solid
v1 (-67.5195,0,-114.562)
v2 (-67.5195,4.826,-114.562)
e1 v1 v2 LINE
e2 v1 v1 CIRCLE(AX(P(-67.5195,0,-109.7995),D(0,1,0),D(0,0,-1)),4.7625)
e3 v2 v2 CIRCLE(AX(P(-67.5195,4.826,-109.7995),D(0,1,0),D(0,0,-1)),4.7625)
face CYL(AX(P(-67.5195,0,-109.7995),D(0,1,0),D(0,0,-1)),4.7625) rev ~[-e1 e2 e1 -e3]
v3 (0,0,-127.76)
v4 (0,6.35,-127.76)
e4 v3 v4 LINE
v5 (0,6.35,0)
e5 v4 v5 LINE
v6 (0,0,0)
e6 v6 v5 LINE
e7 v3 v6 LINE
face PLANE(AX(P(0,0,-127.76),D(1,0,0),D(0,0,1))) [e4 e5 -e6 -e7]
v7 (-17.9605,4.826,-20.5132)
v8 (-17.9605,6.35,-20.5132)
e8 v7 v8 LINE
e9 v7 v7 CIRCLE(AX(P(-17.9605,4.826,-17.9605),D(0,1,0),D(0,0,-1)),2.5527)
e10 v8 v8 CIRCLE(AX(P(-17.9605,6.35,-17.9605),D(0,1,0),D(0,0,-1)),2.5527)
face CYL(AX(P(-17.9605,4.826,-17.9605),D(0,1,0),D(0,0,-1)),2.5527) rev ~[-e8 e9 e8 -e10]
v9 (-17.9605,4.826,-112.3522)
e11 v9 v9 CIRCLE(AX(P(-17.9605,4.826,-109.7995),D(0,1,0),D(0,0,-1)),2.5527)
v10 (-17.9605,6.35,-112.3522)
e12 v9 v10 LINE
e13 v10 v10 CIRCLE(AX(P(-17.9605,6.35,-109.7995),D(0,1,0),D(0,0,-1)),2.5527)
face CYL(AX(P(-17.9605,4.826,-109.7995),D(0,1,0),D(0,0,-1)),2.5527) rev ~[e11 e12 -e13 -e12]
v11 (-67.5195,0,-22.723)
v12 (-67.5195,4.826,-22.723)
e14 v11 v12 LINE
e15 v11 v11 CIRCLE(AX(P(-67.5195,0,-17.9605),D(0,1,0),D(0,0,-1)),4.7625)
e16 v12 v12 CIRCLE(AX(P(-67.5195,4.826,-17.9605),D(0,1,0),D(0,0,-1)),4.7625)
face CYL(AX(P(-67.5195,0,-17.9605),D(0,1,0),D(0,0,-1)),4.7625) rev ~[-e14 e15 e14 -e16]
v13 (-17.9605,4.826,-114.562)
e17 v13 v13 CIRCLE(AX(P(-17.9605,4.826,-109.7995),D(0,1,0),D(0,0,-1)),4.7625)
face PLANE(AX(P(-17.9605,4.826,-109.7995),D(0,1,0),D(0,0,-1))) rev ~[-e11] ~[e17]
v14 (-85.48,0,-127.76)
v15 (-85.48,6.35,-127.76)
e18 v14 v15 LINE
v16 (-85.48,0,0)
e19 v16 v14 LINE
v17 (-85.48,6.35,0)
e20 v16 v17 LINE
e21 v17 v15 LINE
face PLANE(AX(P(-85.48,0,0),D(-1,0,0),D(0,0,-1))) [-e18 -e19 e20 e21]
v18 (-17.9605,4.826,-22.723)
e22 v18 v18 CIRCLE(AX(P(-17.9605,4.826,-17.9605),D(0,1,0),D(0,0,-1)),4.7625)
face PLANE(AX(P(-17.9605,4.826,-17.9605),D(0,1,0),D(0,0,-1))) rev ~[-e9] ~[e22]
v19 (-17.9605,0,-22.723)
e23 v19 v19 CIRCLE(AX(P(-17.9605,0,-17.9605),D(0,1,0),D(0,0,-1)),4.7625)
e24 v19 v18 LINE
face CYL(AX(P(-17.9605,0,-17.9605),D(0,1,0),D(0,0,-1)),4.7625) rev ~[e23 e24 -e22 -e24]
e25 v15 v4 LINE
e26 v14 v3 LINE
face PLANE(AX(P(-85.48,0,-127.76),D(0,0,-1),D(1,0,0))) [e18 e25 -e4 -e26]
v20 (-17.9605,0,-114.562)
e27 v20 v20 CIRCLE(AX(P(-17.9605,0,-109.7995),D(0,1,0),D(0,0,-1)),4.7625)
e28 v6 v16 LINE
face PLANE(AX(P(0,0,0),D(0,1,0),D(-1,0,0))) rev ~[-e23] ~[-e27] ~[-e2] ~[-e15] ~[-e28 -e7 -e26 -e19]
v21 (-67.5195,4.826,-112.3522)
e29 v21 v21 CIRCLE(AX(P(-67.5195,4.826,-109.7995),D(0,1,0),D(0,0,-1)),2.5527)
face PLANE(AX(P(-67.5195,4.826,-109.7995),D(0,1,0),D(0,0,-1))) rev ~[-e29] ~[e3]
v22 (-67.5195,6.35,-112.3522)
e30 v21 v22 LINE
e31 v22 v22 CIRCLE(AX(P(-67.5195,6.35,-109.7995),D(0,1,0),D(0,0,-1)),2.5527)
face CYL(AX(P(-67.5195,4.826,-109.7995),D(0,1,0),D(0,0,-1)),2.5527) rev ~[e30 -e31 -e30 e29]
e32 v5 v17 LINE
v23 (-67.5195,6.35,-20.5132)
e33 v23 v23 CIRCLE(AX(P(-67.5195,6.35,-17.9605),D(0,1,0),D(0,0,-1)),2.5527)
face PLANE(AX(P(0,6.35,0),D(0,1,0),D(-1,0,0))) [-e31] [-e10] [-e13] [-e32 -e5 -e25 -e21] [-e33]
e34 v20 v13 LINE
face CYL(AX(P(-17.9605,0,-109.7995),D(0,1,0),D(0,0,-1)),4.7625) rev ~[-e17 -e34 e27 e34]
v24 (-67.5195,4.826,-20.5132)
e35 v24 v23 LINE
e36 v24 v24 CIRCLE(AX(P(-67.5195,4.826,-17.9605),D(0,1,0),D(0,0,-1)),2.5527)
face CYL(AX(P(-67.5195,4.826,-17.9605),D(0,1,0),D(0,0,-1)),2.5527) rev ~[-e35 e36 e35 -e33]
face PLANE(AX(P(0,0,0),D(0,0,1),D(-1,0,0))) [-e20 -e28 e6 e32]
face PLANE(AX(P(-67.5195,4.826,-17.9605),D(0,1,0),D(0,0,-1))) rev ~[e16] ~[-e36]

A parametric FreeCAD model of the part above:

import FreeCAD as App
import Part
import Sketcher

V = App.Vector
Q = App.Units.Quantity


def add_polygon(sketch, points):
    """Adds a closed chain of lines whose ends are joined by coincident constraints."""
    first, n = sketch.GeometryCount, len(points)
    for a, b in zip(points, points[1:] + points[:1]):
        sketch.addGeometry(Part.LineSegment(App.Vector(*a, 0), App.Vector(*b, 0)), False)
    for i in range(n):
        sketch.addConstraint(Sketcher.Constraint("Coincident", first + i, 2, first + (i + 1) % n, 1))

doc = App.newDocument("Part")
body = doc.addObject("PartDesign::Body", "Body")

# Sketch on XZ plane
sketch1 = body.newObject("Sketcher::SketchObject", "Sketch")
sketch1.AttachmentSupport = (doc.getObject("XZ_Plane"), [""])
sketch1.MapMode = "FlatFace"
add_polygon(sketch1, [(-85, 0), (0, 0), (0, -128), (-85, -128)])  # lines 0-3
sketch1.addConstraint([
    Sketcher.Constraint("Horizontal", 0),
    Sketcher.Constraint("Vertical", 1),
    Sketcher.Constraint("Horizontal", 2),
    Sketcher.Constraint("Vertical", 3),
    Sketcher.Constraint("Coincident", 0, 2, -1, 1),
    Sketcher.Constraint("DistanceX", 0, 1, 0, 2, 85.48),
    Sketcher.Constraint("DistanceY", 1, 2, 1, 1, 127.76),
])
pad1 = body.newObject("PartDesign::Pad", "Pad")
pad1.Profile = sketch1
pad1.Length = Q("0.25 in")
pad1.Reversed = True

# Sketch on XZ plane
sketch2 = body.newObject("Sketcher::SketchObject", "Sketch001")
sketch2.AttachmentSupport = (doc.getObject("XZ_Plane"), [""])
sketch2.MapMode = "FlatFace"
sketch2.addGeometry([
    Part.Circle(V(-18, -18, 0), V(0, 0, 1), 2.6),
    Part.Circle(V(-67.5, -18, 0), V(0, 0, 1), 2.6),
    Part.Circle(V(-67.5, -109.8, 0), V(0, 0, 1), 2.6),
    Part.Circle(V(-18, -109.8, 0), V(0, 0, 1), 2.6),
], False)
sketch2.addConstraint([
    Sketcher.Constraint("Equal", 0, 1),
    Sketcher.Constraint("Equal", 1, 2),
    Sketcher.Constraint("Equal", 2, 3),
    Sketcher.Constraint("Horizontal", 0, 3, 1, 3),
    Sketcher.Constraint("Horizontal", 2, 3, 3, 3),
    Sketcher.Constraint("Vertical", 1, 3, 2, 3),
    Sketcher.Constraint("Vertical", 0, 3, 3, 3),
    Sketcher.Constraint("Diameter", 0, Q("0.201 in")),
    Sketcher.Constraint("DistanceX", 0, 3, -1, 1, Q("0.7071 in")),
    Sketcher.Constraint("DistanceY", 0, 3, -1, 1, Q("0.7071 in")),
    Sketcher.Constraint("DistanceY", 2, 3, 1, 3, Q("3.6157 in")),
    Sketcher.Constraint("DistanceX", 1, 3, -1, 1, 67.5195),
])
doc.recompute()
hole = body.newObject("PartDesign::Hole", "Hole")
hole.Profile = sketch2
hole.ThreadType = "None"
hole.Diameter = Q("0.201 in")
hole.DepthType = "ThroughAll"
hole.HoleCutType = "Counterbore"
hole.HoleCutDiameter = Q("0.375 in")
hole.HoleCutDepth = Q("0.19 in")

doc.recompute()
